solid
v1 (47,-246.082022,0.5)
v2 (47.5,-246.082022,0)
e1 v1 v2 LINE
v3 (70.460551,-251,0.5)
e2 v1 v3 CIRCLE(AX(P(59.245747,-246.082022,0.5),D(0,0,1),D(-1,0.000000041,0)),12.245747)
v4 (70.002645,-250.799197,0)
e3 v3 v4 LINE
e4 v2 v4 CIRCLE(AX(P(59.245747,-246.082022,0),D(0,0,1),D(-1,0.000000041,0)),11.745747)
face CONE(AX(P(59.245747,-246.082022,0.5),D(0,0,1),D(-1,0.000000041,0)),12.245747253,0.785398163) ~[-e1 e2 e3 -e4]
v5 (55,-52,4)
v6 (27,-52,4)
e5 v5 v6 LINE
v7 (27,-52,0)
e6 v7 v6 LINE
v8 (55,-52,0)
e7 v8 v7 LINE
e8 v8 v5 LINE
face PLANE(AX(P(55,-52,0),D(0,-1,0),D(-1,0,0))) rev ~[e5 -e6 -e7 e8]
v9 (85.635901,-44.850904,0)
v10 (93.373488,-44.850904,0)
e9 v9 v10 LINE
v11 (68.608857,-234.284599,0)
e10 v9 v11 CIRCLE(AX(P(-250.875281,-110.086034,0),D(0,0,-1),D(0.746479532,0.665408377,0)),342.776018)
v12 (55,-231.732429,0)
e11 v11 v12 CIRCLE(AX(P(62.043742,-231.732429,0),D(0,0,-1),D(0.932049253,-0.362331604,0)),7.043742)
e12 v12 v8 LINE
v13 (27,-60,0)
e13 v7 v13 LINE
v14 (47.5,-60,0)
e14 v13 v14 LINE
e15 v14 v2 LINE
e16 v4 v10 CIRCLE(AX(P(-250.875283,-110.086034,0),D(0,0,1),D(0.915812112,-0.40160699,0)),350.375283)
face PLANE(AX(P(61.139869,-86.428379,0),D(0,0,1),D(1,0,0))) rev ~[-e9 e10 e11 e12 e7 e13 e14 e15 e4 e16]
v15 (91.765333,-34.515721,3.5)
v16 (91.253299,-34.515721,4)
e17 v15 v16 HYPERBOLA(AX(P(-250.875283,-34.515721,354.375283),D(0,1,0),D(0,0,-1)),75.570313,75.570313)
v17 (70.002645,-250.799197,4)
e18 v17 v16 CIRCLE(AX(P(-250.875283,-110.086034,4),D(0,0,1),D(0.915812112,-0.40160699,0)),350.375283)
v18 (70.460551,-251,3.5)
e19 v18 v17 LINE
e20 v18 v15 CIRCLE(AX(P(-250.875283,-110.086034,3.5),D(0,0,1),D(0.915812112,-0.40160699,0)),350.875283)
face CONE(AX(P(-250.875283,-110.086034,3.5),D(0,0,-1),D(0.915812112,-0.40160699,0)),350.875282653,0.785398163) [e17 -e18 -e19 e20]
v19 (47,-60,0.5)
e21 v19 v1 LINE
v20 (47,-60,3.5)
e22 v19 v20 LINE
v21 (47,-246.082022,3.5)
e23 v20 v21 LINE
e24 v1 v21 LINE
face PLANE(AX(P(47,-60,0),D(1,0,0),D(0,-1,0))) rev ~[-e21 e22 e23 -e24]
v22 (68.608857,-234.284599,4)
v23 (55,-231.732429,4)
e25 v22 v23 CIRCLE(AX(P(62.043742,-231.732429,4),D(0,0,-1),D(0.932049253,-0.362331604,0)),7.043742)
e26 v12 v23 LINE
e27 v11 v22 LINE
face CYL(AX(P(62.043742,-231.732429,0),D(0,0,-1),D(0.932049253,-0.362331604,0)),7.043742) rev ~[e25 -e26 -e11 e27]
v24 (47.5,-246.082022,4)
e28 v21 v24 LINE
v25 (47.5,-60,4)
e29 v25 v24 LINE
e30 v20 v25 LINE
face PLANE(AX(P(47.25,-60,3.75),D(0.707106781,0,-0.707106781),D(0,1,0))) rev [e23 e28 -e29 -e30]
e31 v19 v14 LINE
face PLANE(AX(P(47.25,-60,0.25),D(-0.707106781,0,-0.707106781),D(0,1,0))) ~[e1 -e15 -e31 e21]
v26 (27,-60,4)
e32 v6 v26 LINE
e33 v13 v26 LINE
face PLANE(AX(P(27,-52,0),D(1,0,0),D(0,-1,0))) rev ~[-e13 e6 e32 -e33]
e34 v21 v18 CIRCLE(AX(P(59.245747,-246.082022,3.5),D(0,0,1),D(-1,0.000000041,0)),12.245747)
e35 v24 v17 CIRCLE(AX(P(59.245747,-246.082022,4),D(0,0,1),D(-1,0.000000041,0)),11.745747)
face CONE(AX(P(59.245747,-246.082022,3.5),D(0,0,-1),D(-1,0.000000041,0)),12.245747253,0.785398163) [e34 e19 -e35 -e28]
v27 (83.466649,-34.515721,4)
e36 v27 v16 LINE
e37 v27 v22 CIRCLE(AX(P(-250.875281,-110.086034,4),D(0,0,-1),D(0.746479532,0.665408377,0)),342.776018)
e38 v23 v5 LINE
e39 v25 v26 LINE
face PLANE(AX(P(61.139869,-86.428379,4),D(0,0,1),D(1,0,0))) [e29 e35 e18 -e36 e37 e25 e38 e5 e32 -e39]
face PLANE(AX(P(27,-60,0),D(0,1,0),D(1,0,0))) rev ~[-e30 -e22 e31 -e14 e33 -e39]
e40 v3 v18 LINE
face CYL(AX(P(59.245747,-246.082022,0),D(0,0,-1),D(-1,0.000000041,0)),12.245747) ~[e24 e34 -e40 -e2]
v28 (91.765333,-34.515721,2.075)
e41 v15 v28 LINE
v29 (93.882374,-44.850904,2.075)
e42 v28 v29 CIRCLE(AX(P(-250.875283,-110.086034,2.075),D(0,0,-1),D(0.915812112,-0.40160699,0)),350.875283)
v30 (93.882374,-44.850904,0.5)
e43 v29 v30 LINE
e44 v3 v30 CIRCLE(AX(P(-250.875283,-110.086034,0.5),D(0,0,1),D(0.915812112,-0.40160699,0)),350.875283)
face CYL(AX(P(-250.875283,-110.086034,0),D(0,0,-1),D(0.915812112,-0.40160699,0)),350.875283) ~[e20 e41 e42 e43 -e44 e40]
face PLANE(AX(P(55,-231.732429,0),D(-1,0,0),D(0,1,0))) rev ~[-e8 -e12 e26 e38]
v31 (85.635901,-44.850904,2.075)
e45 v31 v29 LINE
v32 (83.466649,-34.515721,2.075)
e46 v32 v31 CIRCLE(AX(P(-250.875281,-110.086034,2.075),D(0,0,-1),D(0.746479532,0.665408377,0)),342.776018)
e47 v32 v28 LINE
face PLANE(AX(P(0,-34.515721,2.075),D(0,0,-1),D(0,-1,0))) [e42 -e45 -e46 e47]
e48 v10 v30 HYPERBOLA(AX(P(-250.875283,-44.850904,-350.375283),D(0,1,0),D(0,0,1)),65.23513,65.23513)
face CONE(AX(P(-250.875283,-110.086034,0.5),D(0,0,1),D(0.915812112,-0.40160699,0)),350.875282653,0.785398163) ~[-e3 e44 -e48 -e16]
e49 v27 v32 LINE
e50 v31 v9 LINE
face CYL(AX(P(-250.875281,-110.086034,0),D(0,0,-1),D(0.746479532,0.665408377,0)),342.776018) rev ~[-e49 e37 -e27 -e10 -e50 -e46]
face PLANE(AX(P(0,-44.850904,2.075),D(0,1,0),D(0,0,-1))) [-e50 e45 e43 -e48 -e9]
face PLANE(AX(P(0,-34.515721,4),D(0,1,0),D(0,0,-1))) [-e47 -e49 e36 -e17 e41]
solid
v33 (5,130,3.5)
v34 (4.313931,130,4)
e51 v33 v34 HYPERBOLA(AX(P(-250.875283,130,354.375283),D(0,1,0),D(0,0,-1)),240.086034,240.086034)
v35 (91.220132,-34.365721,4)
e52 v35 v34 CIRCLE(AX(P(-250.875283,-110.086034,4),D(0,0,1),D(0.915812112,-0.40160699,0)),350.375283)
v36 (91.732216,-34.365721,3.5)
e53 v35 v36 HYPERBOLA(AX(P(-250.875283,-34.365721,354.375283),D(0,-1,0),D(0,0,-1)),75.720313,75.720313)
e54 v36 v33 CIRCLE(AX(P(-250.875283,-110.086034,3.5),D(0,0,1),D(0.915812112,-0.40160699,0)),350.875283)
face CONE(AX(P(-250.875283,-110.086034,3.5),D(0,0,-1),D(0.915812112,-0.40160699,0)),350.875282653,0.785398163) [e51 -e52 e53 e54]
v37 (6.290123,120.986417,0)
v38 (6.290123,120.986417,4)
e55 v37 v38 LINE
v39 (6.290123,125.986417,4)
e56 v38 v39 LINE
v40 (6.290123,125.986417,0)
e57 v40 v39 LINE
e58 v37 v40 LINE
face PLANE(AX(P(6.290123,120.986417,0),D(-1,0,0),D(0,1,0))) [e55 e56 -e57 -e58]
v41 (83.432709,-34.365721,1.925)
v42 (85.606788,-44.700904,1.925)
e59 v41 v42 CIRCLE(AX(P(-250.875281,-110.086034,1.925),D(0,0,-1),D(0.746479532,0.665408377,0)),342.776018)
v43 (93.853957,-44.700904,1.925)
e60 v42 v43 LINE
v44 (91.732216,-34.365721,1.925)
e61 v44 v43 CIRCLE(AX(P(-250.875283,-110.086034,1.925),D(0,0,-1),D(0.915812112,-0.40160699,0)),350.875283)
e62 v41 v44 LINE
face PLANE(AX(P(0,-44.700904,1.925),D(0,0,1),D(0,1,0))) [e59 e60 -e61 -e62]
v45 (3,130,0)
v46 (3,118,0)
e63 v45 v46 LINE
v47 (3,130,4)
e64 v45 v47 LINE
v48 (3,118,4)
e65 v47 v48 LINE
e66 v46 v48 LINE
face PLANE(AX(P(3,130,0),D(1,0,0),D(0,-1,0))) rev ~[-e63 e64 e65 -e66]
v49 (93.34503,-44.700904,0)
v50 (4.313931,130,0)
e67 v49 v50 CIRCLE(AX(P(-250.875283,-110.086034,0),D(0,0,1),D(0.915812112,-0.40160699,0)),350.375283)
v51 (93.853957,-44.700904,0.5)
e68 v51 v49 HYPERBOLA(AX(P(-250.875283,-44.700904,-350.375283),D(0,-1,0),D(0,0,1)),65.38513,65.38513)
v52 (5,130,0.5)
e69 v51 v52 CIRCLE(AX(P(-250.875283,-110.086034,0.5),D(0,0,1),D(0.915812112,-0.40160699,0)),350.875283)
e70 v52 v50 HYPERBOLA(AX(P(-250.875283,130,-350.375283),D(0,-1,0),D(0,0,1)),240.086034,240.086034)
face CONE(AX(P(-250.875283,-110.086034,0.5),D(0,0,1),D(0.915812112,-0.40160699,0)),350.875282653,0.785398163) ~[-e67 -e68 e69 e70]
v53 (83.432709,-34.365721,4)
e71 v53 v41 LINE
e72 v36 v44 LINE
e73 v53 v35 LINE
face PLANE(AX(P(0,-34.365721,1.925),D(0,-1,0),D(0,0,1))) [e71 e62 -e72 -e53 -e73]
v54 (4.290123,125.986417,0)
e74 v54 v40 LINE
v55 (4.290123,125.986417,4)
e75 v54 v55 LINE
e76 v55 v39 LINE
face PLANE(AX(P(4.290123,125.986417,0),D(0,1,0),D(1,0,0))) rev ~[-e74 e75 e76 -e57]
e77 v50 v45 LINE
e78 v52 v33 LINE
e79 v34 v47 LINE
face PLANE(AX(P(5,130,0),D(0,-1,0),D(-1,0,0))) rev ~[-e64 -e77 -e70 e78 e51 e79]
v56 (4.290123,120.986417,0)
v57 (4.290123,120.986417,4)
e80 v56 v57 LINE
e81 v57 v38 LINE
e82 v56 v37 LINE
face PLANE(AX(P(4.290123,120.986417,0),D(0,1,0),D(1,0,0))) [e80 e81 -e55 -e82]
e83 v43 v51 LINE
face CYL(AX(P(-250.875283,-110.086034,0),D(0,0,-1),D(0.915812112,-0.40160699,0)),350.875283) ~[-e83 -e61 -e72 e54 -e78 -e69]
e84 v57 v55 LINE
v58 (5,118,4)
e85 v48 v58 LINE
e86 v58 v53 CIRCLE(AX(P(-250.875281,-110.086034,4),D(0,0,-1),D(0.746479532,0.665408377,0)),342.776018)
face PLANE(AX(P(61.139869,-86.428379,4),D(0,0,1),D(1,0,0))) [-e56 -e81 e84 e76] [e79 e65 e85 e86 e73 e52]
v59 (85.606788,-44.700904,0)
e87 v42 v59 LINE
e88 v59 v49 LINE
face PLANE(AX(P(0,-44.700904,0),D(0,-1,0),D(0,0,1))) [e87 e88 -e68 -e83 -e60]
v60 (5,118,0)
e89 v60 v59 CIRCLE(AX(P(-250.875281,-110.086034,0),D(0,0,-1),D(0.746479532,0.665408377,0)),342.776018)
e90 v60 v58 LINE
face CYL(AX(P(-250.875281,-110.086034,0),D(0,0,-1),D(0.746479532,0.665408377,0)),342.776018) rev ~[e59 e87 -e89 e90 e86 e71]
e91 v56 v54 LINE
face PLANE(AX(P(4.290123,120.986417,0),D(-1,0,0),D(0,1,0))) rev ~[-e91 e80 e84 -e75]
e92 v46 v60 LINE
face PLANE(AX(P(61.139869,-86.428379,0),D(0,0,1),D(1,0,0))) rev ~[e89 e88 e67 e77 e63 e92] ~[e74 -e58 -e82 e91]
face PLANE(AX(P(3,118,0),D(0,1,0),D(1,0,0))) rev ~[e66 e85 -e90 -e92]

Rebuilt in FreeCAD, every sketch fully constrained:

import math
import FreeCAD as App
import Part
import Sketcher
Q = App.Units.Quantity


def edges_at(feature, points):
    """Names of the edges that pass closest to the given points."""
    edges = feature.Shape.Edges
    near = lambda p: min(range(len(edges)), key=lambda i: edges[i].distToShape(Part.Vertex(*p))[0])
    return sorted({f"Edge{near(p) + 1}" for p in points})

doc = App.newDocument("Part")
params = doc.addObject("Spreadsheet::Sheet", "Params")
for row, (alias, value) in enumerate([
    ("sketch1_width", "20 mm"),
    ("sketch1_width2", "2 mm"),
    ("sketch1_width3", "28 mm"),
    ("sketch1_height", "8 mm"),
    ("sketch1_height2", "12 mm"),
    ("pad1_length", "4 mm"),
    ("chamfer_size", "0.5 mm"),
    ("sketch2_width", "0.15 mm"),
    ("pocket1_length", "150 mm"),
], start=1):
    params.set(f"A{row}", alias)
    params.set(f"B{row}", "=" + value)
    params.setAlias(f"B{row}", alias)

body = doc.addObject("PartDesign::Body", "Body")
body.AllowCompound = True

# Sketch on XY plane
sketch1 = doc.addObject("Sketcher::SketchObject", "Sketch")
body.addObject(sketch1)
sketch1.AttachmentSupport = (doc.XY_Plane, [""])
sketch1.MapMode = "FlatFace"
sketch1.addGeometry([
    Part.LineSegment(App.Vector(27, -52, 0), App.Vector(27, -60, 0)),  # 0
    Part.LineSegment(App.Vector(27, -60, 0), App.Vector(47, -60, 0)),  # 1
    Part.LineSegment(App.Vector(47, -60, 0), App.Vector(47, -246.1, 0)),  # 2
    Part.ArcOfCircle(Part.Circle(App.Vector(59.2, -246.1, 0), App.Vector(0, 0, 1), 12.2), math.radians(180), math.radians(336)),  # 3
    Part.ArcOfCircle(Part.Circle(App.Vector(-250.9, -110.1, 0), App.Vector(0, 0, 1), 350.9), math.radians(-24), math.radians(43)),  # 4
    Part.LineSegment(App.Vector(5, 130, 0), App.Vector(3, 130, 0)),  # 5
    Part.LineSegment(App.Vector(3, 130, 0), App.Vector(3, 118, 0)),  # 6
    Part.LineSegment(App.Vector(3, 118, 0), App.Vector(5, 118, 0)),  # 7
    Part.ArcOfCircle(Part.Circle(App.Vector(-250.9, -110.1, 0), App.Vector(0, 0, 1), 342.8), math.radians(-21), math.radians(42)),  # 8
    Part.ArcOfCircle(Part.Circle(App.Vector(62, -231.7, 0), App.Vector(0, 0, 1), 7), math.radians(-180), math.radians(-21)),  # 9
    Part.LineSegment(App.Vector(55, -231.7, 0), App.Vector(55, -52, 0)),  # 10
    Part.LineSegment(App.Vector(55, -52, 0), App.Vector(27, -52, 0)),  # 11
    Part.LineSegment(App.Vector(6.3, 121, 0), App.Vector(4.3, 121, 0)),  # 12
    Part.LineSegment(App.Vector(4.3, 121, 0), App.Vector(4.3, 126, 0)),  # 13
    Part.LineSegment(App.Vector(4.3, 126, 0), App.Vector(6.3, 126, 0)),  # 14
    Part.LineSegment(App.Vector(6.3, 126, 0), App.Vector(6.3, 121, 0)),  # 15
], False)
sketch1.addConstraint([
    Sketcher.Constraint("Coincident", 0, 2, 1, 1),
    Sketcher.Constraint("Coincident", 1, 2, 2, 1),
    Sketcher.Constraint("Tangent", 2, 2, 3, 1),
    Sketcher.Constraint("Tangent", 3, 2, 4, 1),
    Sketcher.Constraint("Coincident", 4, 2, 5, 1),
    Sketcher.Constraint("Coincident", 5, 2, 6, 1),
    Sketcher.Constraint("Coincident", 6, 2, 7, 1),
    Sketcher.Constraint("Coincident", 7, 2, 8, 2),
    Sketcher.Constraint("Tangent", 8, 1, 9, 2),
    Sketcher.Constraint("Tangent", 9, 1, 10, 1),
    Sketcher.Constraint("Coincident", 10, 2, 11, 1),
    Sketcher.Constraint("Coincident", 11, 2, 0, 1),
    Sketcher.Constraint("Coincident", 12, 2, 13, 1),
    Sketcher.Constraint("Coincident", 13, 2, 14, 1),
    Sketcher.Constraint("Coincident", 14, 2, 15, 1),
    Sketcher.Constraint("Coincident", 15, 2, 12, 1),
    Sketcher.Constraint("Vertical", 0),
    Sketcher.Constraint("Horizontal", 1),
    Sketcher.Constraint("Vertical", 2),
    Sketcher.Constraint("Horizontal", 5),
    Sketcher.Constraint("Vertical", 6),
    Sketcher.Constraint("Horizontal", 7),
    Sketcher.Constraint("Vertical", 10),
    Sketcher.Constraint("Horizontal", 11),
    Sketcher.Constraint("Horizontal", 12),
    Sketcher.Constraint("Vertical", 13),
    Sketcher.Constraint("Horizontal", 14),
    Sketcher.Constraint("Vertical", 15),
    Sketcher.Constraint("Coincident", 8, 3, 4, 3),
    Sketcher.Constraint("Vertical", 4, 2, 7, 2),
    Sketcher.Constraint("Equal", 7, 12),
    Sketcher.Constraint("DistanceX", 1, 1, 1, 2, Q("20 mm")),
    Sketcher.Constraint("DistanceX", 5, 2, 5, 1, Q("2 mm")),
    Sketcher.Constraint("DistanceX", 11, 2, 11, 1, Q("28 mm")),
    Sketcher.Constraint("DistanceY", 0, 2, 0, 1, Q("8 mm")),
    Sketcher.Constraint("DistanceY", 6, 2, 6, 1, Q("12 mm")),
    Sketcher.Constraint("DistanceY", 13, 1, 13, 2, Q("5 mm")),
    Sketcher.Constraint("DistanceX", -1, 1, 0, 2, Q("27 mm")),
    Sketcher.Constraint("DistanceY", 0, 2, -1, 1, Q("60 mm")),
    Sketcher.Constraint("DistanceY", 3, 2, -1, 1, Q("251 mm")),
    Sketcher.Constraint("DistanceX", -1, 1, 5, 2, Q("3 mm")),
    Sketcher.Constraint("DistanceY", -1, 1, 5, 2, Q("130 mm")),
    Sketcher.Constraint("Radius", 3, Q("12.245747 mm")),
    Sketcher.Constraint("Radius", 4, Q("350.875283 mm")),
    Sketcher.Constraint("Radius", 9, Q("7.043742 mm")),
    Sketcher.Constraint("DistanceX", -1, 1, 12, 2, Q("4.290123 mm")),
    Sketcher.Constraint("DistanceY", -1, 1, 12, 2, Q("120.986417 mm")),
])
sketch1.setExpression("Constraints[31]", "Params.sketch1_width")
sketch1.setExpression("Constraints[32]", "Params.sketch1_width2")
sketch1.setExpression("Constraints[33]", "Params.sketch1_width3")
sketch1.setExpression("Constraints[34]", "Params.sketch1_height")
sketch1.setExpression("Constraints[35]", "Params.sketch1_height2")
pad1 = doc.addObject("PartDesign::Pad", "Pad")
body.addObject(pad1)
pad1.Profile = sketch1
pad1.setExpression("Length", "Params.pad1_length")
doc.recompute()

chamfer = doc.addObject("PartDesign::Chamfer", "Chamfer")
body.addObject(chamfer)
chamfer.Base = (pad1, edges_at(pad1, [(94.933, -50.672, 0), (94.933, -50.672, 4)]))
chamfer.setExpression("Size", "Params.chamfer_size")

# Sketch on YZ plane
sketch2 = doc.addObject("Sketcher::SketchObject", "Sketch001")
body.addObject(sketch2)
sketch2.AttachmentSupport = (doc.YZ_Plane, [""])
sketch2.MapMode = "FlatFace"
sketch2.addGeometry([
    Part.LineSegment(App.Vector(-44.85, 2.08, 0), App.Vector(-44.85, 0, 0)),  # 0
    Part.LineSegment(App.Vector(-44.85, 0, 0), App.Vector(-44.7, 0, 0)),  # 1
    Part.LineSegment(App.Vector(-44.7, 0, 0), App.Vector(-44.7, 1.93, 0)),  # 2
    Part.LineSegment(App.Vector(-44.7, 1.93, 0), App.Vector(-34.37, 1.93, 0)),  # 3
    Part.LineSegment(App.Vector(-34.37, 1.93, 0), App.Vector(-34.37, 4, 0)),  # 4
    Part.LineSegment(App.Vector(-34.37, 4, 0), App.Vector(-34.52, 4, 0)),  # 5
    Part.LineSegment(App.Vector(-34.52, 4, 0), App.Vector(-34.52, 2.08, 0)),  # 6
    Part.LineSegment(App.Vector(-34.52, 2.08, 0), App.Vector(-44.85, 2.08, 0)),  # 7
], False)
sketch2.addConstraint([
    Sketcher.Constraint("Coincident", 0, 2, 1, 1),
    Sketcher.Constraint("Coincident", 1, 2, 2, 1),
    Sketcher.Constraint("Coincident", 2, 2, 3, 1),
    Sketcher.Constraint("Coincident", 3, 2, 4, 1),
    Sketcher.Constraint("Coincident", 4, 2, 5, 1),
    Sketcher.Constraint("Coincident", 5, 2, 6, 1),
    Sketcher.Constraint("Coincident", 6, 2, 7, 1),
    Sketcher.Constraint("Coincident", 7, 2, 0, 1),
    Sketcher.Constraint("Vertical", 0),
    Sketcher.Constraint("Horizontal", 1),
    Sketcher.Constraint("Vertical", 2),
    Sketcher.Constraint("Horizontal", 3),
    Sketcher.Constraint("Vertical", 4),
    Sketcher.Constraint("Horizontal", 5),
    Sketcher.Constraint("Vertical", 6),
    Sketcher.Constraint("Horizontal", 7),
    Sketcher.Constraint("PointOnObject", 0, 2, -1),
    Sketcher.Constraint("Equal", 1, 5),
    Sketcher.Constraint("Equal", 0, 4),
    Sketcher.Constraint("DistanceY", -1, 1, 4, 2, Q("4 mm")),
    Sketcher.Constraint("DistanceX", 1, 1, 1, 2, Q("0.15 mm")),
    Sketcher.Constraint("DistanceY", 0, 2, 0, 1, Q("2.075 mm")),
    Sketcher.Constraint("DistanceX", 3, 1, 3, 2, Q("10.335183 mm")),
    Sketcher.Constraint("DistanceX", 3, 2, -1, 1, Q("34.365721 mm")),
])
sketch2.setExpression("Constraints[20]", "Params.sketch2_width")
pocket1 = doc.addObject("PartDesign::Pocket", "Pocket")
body.addObject(pocket1)
pocket1.Profile = sketch2
pocket1.setExpression("Length", "Params.pocket1_length")
pocket1.Reversed = True

doc.recompute()
